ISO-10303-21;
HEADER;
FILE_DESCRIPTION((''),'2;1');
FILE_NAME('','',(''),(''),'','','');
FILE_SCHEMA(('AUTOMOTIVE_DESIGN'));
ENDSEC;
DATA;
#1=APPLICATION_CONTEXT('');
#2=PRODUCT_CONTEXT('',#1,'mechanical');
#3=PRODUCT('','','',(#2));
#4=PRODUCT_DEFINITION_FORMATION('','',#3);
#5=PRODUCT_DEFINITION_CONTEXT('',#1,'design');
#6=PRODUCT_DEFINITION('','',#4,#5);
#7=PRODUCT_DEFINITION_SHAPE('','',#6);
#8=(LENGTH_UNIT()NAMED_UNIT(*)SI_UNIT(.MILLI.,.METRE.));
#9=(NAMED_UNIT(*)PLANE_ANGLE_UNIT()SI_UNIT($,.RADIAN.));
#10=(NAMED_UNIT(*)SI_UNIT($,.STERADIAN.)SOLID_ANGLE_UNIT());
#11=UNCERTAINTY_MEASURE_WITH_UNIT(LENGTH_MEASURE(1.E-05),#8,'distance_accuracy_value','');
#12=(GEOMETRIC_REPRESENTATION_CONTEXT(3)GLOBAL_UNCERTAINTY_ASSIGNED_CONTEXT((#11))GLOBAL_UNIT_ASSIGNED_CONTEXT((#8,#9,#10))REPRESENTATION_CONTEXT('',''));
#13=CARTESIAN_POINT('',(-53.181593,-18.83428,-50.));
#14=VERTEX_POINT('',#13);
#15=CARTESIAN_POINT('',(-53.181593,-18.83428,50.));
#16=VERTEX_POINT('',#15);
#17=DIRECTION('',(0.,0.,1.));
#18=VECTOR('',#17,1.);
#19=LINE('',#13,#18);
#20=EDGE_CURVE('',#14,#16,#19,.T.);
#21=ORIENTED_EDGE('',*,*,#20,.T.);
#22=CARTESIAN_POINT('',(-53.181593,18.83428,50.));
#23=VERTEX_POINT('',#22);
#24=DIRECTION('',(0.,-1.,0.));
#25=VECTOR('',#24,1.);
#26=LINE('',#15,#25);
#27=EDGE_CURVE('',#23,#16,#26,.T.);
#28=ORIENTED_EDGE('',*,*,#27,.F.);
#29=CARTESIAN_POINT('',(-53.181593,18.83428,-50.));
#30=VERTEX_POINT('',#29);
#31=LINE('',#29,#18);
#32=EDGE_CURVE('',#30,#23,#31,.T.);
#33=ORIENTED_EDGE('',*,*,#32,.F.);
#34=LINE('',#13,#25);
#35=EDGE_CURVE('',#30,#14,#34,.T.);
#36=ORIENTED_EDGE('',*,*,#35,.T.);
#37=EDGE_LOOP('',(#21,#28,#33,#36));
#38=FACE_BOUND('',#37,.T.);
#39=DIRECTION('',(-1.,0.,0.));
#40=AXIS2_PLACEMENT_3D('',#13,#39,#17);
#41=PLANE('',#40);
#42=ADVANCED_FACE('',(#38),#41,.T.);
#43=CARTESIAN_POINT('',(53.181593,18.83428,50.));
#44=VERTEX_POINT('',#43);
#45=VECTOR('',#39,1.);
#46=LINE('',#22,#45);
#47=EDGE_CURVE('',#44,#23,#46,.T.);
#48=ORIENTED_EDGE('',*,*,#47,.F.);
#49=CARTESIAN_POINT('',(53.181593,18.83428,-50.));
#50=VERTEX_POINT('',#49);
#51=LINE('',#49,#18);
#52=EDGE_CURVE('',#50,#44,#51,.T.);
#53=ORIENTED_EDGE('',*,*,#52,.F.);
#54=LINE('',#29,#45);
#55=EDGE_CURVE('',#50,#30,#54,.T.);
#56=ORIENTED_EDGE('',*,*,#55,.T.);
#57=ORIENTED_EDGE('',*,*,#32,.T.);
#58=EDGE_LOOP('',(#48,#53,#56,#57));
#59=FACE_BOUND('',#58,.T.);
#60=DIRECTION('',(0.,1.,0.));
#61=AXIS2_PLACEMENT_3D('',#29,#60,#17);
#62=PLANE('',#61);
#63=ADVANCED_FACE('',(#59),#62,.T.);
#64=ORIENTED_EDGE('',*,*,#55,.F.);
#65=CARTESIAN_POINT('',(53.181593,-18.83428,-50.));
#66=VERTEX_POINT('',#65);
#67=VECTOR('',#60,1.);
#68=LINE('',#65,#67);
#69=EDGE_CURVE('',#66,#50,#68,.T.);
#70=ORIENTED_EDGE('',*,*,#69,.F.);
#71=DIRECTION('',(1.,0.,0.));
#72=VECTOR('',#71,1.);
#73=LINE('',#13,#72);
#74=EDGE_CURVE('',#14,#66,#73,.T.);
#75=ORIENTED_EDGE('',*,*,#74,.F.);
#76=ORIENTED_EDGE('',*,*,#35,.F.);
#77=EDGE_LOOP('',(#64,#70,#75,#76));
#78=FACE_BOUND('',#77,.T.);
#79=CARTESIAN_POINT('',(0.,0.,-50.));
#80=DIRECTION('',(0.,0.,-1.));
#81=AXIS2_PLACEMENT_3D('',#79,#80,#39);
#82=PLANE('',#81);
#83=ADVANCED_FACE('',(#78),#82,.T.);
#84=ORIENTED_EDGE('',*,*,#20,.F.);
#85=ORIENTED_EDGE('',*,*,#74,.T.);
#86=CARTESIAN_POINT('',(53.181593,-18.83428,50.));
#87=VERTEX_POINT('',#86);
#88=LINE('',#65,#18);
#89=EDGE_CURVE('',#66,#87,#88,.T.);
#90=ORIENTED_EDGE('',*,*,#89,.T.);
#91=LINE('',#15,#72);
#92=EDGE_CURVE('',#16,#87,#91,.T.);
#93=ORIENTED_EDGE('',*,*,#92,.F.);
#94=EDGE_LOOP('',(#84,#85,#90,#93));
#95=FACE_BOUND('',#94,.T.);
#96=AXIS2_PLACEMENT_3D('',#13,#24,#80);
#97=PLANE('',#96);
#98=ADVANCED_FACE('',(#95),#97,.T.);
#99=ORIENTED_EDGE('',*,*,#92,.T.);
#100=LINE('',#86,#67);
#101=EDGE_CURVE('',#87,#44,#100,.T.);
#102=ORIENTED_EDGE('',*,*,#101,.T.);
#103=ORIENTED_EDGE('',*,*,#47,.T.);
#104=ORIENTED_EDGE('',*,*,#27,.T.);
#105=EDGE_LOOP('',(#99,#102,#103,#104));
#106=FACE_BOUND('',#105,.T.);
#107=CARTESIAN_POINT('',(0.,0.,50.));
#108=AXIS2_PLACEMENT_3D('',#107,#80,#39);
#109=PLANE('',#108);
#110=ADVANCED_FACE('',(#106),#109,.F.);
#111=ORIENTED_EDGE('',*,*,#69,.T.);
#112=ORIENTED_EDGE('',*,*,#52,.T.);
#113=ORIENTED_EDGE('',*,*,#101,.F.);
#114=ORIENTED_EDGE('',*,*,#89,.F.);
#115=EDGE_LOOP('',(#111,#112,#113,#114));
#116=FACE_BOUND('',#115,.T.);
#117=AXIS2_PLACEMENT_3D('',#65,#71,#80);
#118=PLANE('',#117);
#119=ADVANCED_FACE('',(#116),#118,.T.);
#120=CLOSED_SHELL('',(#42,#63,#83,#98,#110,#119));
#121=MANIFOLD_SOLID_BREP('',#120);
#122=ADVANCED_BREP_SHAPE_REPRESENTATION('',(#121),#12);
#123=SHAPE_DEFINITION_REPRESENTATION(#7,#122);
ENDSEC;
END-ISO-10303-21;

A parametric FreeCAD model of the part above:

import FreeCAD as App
import Part
import Sketcher

V = App.Vector


def add_polygon(sketch, points):
    """Adds a closed chain of lines whose ends are joined by coincident constraints."""
    first, n = sketch.GeometryCount, len(points)
    for a, b in zip(points, points[1:] + points[:1]):
        sketch.addGeometry(Part.LineSegment(App.Vector(*a, 0), App.Vector(*b, 0)), False)
    for i in range(n):
        sketch.addConstraint(Sketcher.Constraint("Coincident", first + i, 2, first + (i + 1) % n, 1))

doc = App.newDocument("Part")
params = doc.addObject("Spreadsheet::Sheet", "Params")
for row, (alias, value) in enumerate([
    ("pad1_length", "100 mm"),
], start=1):
    params.set(f"A{row}", alias)
    params.set(f"B{row}", "=" + value)
    params.setAlias(f"B{row}", alias)

body = doc.addObject("PartDesign::Body", "Body")

# Sketch on XY plane
sketch1 = body.newObject("Sketcher::SketchObject", "Sketch")
sketch1.AttachmentSupport = (doc.getObject("XY_Plane"), [""])
sketch1.MapMode = "FlatFace"
add_polygon(sketch1, [(-53.181593, 18.83428), (-53.181593, -18.83428), (53.181593, -18.83428), (53.181593, 18.83428)])  # lines 0-3
sketch1.addConstraint([
    Sketcher.Constraint("Vertical", 0),
    Sketcher.Constraint("Horizontal", 1),
    Sketcher.Constraint("Vertical", 2),
    Sketcher.Constraint("Horizontal", 3),
    Sketcher.Constraint("Symmetric", 0, 2, 2, 2, -1, 1),
    Sketcher.Constraint("DistanceY", 0, 2, 0, 1, 37.668561),
    Sketcher.Constraint("DistanceX", 1, 1, 1, 2, 106.363185),
])
pad1 = body.newObject("PartDesign::Pad", "Pad")
pad1.Profile = sketch1
pad1.setExpression("Length", "Params.pad1_length")
pad1.Midplane = True

doc.recompute()
